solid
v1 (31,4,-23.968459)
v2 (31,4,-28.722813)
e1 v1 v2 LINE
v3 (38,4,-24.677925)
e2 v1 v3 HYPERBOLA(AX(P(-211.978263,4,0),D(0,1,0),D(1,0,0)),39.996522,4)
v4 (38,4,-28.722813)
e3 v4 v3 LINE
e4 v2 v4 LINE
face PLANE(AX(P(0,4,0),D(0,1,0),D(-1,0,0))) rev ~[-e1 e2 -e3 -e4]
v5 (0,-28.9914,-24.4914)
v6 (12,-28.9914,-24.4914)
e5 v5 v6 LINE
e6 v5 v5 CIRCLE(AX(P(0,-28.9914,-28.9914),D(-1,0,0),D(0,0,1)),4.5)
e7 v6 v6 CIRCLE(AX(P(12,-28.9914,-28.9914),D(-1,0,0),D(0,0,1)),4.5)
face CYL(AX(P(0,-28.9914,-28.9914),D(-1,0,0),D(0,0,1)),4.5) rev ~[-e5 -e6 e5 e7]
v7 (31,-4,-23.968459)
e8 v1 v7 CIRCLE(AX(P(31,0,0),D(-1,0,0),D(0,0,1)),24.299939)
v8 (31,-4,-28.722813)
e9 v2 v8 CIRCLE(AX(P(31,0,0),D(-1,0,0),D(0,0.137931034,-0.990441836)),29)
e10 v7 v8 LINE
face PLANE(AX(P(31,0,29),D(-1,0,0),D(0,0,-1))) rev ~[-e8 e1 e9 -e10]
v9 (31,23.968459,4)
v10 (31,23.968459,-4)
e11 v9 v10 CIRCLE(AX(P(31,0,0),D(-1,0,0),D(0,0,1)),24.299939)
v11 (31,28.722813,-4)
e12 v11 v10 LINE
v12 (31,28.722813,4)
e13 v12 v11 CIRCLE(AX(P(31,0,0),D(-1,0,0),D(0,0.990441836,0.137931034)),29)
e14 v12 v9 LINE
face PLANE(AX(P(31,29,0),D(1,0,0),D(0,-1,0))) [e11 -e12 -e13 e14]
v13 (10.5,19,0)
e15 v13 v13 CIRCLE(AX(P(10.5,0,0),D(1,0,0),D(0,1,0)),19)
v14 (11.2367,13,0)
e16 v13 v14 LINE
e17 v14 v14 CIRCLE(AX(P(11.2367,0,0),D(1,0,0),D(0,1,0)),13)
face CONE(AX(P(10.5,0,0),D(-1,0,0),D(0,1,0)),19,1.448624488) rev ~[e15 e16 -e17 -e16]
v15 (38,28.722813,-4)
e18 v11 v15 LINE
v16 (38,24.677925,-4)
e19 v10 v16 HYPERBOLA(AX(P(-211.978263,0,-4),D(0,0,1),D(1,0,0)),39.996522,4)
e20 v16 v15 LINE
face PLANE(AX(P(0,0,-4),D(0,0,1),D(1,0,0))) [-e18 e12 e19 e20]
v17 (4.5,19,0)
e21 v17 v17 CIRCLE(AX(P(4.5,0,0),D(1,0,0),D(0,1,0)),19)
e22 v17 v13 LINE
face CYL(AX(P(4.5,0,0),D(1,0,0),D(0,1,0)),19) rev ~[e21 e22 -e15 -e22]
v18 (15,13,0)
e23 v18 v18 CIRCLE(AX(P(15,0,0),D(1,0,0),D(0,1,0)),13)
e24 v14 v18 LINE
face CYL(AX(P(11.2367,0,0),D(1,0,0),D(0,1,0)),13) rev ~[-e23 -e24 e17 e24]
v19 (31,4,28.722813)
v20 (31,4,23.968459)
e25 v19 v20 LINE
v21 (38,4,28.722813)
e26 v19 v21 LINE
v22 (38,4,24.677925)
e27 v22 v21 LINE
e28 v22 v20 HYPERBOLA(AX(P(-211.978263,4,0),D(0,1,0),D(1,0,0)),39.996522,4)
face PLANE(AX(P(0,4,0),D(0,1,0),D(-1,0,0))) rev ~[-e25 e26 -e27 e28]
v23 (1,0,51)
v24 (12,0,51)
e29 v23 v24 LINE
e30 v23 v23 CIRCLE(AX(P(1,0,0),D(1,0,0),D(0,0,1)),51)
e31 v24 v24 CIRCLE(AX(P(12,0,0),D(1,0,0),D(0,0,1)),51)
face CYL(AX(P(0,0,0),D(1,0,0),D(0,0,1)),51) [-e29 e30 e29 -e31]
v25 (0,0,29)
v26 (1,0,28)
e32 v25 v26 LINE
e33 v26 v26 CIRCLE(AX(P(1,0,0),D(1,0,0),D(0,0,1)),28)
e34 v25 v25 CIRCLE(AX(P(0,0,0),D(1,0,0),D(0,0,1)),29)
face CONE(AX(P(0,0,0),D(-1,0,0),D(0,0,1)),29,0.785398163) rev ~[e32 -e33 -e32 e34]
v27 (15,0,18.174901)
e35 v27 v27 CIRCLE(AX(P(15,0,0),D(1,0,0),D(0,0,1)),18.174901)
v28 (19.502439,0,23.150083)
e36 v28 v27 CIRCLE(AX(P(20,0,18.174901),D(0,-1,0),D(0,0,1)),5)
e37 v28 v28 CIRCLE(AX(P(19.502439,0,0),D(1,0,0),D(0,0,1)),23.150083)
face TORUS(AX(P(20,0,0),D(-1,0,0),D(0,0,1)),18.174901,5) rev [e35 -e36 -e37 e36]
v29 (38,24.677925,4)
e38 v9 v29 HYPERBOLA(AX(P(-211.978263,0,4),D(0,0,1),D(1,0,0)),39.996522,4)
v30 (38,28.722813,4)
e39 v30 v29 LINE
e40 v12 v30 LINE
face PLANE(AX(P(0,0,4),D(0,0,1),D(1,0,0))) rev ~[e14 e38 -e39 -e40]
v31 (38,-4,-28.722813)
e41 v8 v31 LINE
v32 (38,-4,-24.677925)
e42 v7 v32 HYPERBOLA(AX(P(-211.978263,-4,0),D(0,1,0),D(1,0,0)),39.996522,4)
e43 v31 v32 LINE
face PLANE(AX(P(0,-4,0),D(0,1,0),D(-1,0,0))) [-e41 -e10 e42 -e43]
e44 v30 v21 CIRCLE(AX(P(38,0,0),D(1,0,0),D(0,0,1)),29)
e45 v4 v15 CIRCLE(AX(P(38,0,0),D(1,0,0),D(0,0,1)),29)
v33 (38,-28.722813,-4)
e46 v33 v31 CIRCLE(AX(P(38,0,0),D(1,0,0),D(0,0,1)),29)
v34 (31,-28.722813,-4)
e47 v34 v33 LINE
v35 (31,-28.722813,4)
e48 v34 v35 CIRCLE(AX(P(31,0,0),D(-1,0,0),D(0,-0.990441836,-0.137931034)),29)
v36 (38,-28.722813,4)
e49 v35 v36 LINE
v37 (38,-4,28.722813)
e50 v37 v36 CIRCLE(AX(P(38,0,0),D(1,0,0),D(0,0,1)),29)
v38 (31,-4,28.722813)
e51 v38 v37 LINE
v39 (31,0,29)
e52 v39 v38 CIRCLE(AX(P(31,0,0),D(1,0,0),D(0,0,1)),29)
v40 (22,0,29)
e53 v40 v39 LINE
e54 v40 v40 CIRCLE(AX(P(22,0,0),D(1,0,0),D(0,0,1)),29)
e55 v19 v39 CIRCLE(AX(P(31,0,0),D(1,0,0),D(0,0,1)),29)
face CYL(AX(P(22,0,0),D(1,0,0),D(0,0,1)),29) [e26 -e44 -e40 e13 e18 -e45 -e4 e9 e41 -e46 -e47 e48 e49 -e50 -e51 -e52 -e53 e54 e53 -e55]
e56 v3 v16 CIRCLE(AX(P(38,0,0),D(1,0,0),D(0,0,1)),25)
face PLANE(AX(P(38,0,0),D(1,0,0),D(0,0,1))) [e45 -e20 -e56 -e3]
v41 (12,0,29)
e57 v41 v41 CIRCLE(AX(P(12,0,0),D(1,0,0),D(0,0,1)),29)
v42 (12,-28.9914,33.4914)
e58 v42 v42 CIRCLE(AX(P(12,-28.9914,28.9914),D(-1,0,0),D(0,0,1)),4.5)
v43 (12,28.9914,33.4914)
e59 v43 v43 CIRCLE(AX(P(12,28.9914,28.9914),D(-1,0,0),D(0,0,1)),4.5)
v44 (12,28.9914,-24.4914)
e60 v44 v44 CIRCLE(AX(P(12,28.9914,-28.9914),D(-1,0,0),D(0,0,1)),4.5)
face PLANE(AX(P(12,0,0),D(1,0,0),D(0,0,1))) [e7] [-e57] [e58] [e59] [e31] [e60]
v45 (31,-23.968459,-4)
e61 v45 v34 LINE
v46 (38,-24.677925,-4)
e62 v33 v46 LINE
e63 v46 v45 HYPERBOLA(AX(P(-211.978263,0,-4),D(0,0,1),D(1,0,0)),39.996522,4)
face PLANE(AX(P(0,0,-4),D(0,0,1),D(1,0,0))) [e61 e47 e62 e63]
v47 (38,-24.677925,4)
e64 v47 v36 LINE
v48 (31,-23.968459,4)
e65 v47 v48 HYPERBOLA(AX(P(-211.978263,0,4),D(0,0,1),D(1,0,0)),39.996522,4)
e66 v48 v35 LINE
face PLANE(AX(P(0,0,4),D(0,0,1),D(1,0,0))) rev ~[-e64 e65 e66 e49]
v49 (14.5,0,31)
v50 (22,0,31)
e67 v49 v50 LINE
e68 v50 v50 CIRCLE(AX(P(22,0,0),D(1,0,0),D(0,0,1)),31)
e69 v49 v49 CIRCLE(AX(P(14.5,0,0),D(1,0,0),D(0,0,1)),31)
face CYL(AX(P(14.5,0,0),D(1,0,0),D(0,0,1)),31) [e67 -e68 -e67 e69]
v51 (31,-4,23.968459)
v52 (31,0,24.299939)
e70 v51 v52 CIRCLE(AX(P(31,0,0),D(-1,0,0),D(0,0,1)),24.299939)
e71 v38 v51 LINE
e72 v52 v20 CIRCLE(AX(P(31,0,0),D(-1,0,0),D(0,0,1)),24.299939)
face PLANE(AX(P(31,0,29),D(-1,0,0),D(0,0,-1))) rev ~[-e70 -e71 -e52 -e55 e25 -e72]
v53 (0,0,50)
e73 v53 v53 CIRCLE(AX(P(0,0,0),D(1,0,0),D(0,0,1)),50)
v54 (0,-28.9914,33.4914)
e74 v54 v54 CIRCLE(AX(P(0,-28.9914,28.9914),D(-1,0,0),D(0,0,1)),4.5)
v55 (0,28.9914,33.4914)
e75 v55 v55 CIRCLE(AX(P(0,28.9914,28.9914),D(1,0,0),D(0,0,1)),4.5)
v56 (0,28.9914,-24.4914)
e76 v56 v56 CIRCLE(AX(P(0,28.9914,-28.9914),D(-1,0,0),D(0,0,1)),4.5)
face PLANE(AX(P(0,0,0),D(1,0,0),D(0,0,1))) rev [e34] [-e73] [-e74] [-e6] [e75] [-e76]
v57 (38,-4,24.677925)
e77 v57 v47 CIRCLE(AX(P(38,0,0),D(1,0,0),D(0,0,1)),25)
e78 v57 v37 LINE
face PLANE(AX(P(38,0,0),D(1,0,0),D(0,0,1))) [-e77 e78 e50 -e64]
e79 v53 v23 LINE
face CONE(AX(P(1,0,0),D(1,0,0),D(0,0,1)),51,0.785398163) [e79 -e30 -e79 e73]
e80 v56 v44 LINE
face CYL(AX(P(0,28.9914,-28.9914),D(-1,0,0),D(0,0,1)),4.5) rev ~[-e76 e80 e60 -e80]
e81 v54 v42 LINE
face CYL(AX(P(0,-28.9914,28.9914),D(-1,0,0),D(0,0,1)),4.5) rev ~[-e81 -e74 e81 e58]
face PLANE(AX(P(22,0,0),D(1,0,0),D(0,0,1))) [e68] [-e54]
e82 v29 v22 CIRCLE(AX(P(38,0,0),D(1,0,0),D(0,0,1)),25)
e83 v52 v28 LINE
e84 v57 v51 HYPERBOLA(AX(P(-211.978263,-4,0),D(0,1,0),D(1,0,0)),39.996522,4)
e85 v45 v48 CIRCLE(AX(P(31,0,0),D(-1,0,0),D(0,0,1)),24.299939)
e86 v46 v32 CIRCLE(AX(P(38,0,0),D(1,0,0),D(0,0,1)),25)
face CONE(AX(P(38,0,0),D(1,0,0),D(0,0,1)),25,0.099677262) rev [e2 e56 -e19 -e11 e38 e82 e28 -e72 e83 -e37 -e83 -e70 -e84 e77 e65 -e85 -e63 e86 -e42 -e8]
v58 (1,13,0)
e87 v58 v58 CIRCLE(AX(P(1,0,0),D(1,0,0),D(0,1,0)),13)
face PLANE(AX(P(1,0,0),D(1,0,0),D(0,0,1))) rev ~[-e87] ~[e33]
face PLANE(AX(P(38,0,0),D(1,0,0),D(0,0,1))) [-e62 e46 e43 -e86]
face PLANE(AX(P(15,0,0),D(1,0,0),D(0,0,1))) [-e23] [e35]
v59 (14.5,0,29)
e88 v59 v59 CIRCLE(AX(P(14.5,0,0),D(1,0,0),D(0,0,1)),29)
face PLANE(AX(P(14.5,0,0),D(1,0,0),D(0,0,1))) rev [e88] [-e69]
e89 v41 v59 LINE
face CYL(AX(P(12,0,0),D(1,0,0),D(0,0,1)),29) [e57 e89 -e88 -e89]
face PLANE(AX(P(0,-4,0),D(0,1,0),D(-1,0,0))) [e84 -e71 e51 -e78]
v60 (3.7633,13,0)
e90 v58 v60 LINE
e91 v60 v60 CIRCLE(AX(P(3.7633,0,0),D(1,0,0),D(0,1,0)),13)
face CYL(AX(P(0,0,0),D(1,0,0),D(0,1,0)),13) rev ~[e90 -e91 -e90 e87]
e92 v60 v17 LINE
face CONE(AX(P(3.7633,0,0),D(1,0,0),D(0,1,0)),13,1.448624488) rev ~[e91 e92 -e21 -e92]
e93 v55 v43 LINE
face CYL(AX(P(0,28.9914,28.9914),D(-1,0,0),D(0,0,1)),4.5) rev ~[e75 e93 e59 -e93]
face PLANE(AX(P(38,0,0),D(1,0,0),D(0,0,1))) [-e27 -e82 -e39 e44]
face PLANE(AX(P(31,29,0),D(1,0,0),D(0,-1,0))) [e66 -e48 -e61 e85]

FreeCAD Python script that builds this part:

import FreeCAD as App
import Part
import Sketcher

V = App.Vector
Q = App.Units.Quantity


def edges_at(feature, points):
    """Names of the edges that pass closest to the given points."""
    edges = feature.Shape.Edges
    near = lambda p: min(range(len(edges)), key=lambda i: edges[i].distToShape(Part.Vertex(*p))[0])
    return sorted({f"Edge{near(p) + 1}" for p in points})

doc = App.newDocument("Part")
body = doc.addObject("PartDesign::Body", "Body")

sketch1 = doc.addObject("Sketcher::SketchObject", "Sketch")
body.addObject(sketch1)
sketch1.AttachmentSupport = (doc.XZ_Plane, [""])
sketch1.MapMode = "FlatFace"
sketch1.addGeometry(Part.LineSegment(V(0, 29, 0), V(0, 51, 0)), False)
sketch1.addGeometry(Part.LineSegment(V(0, 51, 0), V(12, 51, 0)), False)
sketch1.addGeometry(Part.LineSegment(V(12, 51, 0), V(12, 29, 0)), False)
sketch1.addGeometry(Part.LineSegment(V(12, 29, 0), V(14.5, 29, 0)), False)
sketch1.addGeometry(Part.LineSegment(V(14.5, 29, 0), V(14.5, 31, 0)), False)
sketch1.addGeometry(Part.LineSegment(V(14.5, 31, 0), V(22, 31, 0)), False)
sketch1.addGeometry(Part.LineSegment(V(22, 31, 0), V(22, 29, 0)), False)
sketch1.addGeometry(Part.LineSegment(V(22, 29, 0), V(38, 29, 0)), False)
sketch1.addGeometry(Part.LineSegment(V(38, 29, 0), V(38, 25, 0)), False)
sketch1.addGeometry(Part.LineSegment(V(38, 25, 0), V(15, 22.7, 0)), False)
sketch1.addGeometry(Part.LineSegment(V(15, 22.7, 0), V(15, 0, 0)), False)
sketch1.addGeometry(Part.LineSegment(V(15, 0, 0), V(1, 0, 0)), False)
sketch1.addGeometry(Part.LineSegment(V(1, 0, 0), V(1, 28, 0)), False)
sketch1.addGeometry(Part.LineSegment(V(1, 28, 0), V(0, 29, 0)), False)
sketch1.addConstraint(Sketcher.Constraint("Coincident", 0, 2, 1, 1))
sketch1.addConstraint(Sketcher.Constraint("Coincident", 1, 2, 2, 1))
sketch1.addConstraint(Sketcher.Constraint("Coincident", 2, 2, 3, 1))
sketch1.addConstraint(Sketcher.Constraint("Coincident", 3, 2, 4, 1))
sketch1.addConstraint(Sketcher.Constraint("Coincident", 4, 2, 5, 1))
sketch1.addConstraint(Sketcher.Constraint("Coincident", 5, 2, 6, 1))
sketch1.addConstraint(Sketcher.Constraint("Coincident", 6, 2, 7, 1))
sketch1.addConstraint(Sketcher.Constraint("Coincident", 7, 2, 8, 1))
sketch1.addConstraint(Sketcher.Constraint("Coincident", 8, 2, 9, 1))
sketch1.addConstraint(Sketcher.Constraint("Coincident", 9, 2, 10, 1))
sketch1.addConstraint(Sketcher.Constraint("Coincident", 10, 2, 11, 1))
sketch1.addConstraint(Sketcher.Constraint("Coincident", 11, 2, 12, 1))
sketch1.addConstraint(Sketcher.Constraint("Coincident", 12, 2, 13, 1))
sketch1.addConstraint(Sketcher.Constraint("Coincident", 13, 2, 0, 1))
sketch1.addConstraint(Sketcher.Constraint("Vertical", 0))
sketch1.addConstraint(Sketcher.Constraint("Horizontal", 1))
sketch1.addConstraint(Sketcher.Constraint("Vertical", 2))
sketch1.addConstraint(Sketcher.Constraint("Horizontal", 3))
sketch1.addConstraint(Sketcher.Constraint("Vertical", 4))
sketch1.addConstraint(Sketcher.Constraint("Horizontal", 5))
sketch1.addConstraint(Sketcher.Constraint("Vertical", 6))
sketch1.addConstraint(Sketcher.Constraint("Horizontal", 7))
sketch1.addConstraint(Sketcher.Constraint("Vertical", 8))
sketch1.addConstraint(Sketcher.Constraint("Vertical", 10))
sketch1.addConstraint(Sketcher.Constraint("Horizontal", 11))
sketch1.addConstraint(Sketcher.Constraint("Vertical", 12))
sketch1.addConstraint(Sketcher.Constraint("PointOnObject", 0, 2, -2))
sketch1.addConstraint(Sketcher.Constraint("PointOnObject", 10, 2, -1))
sketch1.addConstraint(Sketcher.Constraint("Horizontal", 3, 2, 6, 2))
sketch1.addConstraint(Sketcher.Constraint("Horizontal", 7, 2, 13, 2))
sketch1.addConstraint(Sketcher.Constraint("DistanceX", 1, 1, 1, 2, 12.0))
sketch1.addConstraint(Sketcher.Constraint("DistanceX", 3, 1, 3, 2, 2.5))
sketch1.addConstraint(Sketcher.Constraint("DistanceY", -1, 1, 0, 2, 51.0))
sketch1.addConstraint(Sketcher.Constraint("DistanceY", -1, 1, 2, 2, 29.0))
sketch1.addConstraint(Sketcher.Constraint("DistanceY", -1, 1, 4, 2, 31.0))
sketch1.addConstraint(Sketcher.Constraint("DistanceY", -1, 1, 8, 2, 25.0))
sketch1.addConstraint(Sketcher.Constraint("DistanceX", -1, 1, 9, 2, 15.0))
sketch1.addConstraint(Sketcher.Constraint("DistanceX", -1, 1, 11, 2, 1.0))
sketch1.addConstraint(Sketcher.Constraint("DistanceX", 2, 2, 5, 2, 10.0))
sketch1.addConstraint(Sketcher.Constraint("DistanceX", 2, 2, 7, 2, 26.0))
sketch1.addConstraint(Sketcher.Constraint("DistanceY", 12, 2, 2, 2, 1.0))
sketch1.addConstraint(Sketcher.Constraint("Angle", 9, Q("-174.289 deg")))
revolution = doc.addObject("PartDesign::Revolution", "Revolution")
body.addObject(revolution)
revolution.Profile = sketch1
revolution.ReferenceAxis = (sketch1, ["H_Axis"])
revolution.Angle = 360

sketch2 = doc.addObject("Sketcher::SketchObject", "Sketch001")
body.addObject(sketch2)
sketch2.AttachmentSupport = (doc.XZ_Plane, [""])
sketch2.MapMode = "FlatFace"
sketch2.addGeometry(Part.LineSegment(V(31, -29, 0), V(31, 29, 0)), False)
sketch2.addGeometry(Part.LineSegment(V(31, 29, 0), V(38, 29, 0)), False)
sketch2.addGeometry(Part.LineSegment(V(38, 29, 0), V(38, -29, 0)), False)
sketch2.addGeometry(Part.LineSegment(V(38, -29, 0), V(31, -29, 0)), False)
sketch2.addConstraint(Sketcher.Constraint("Coincident", 0, 2, 1, 1))
sketch2.addConstraint(Sketcher.Constraint("Coincident", 1, 2, 2, 1))
sketch2.addConstraint(Sketcher.Constraint("Coincident", 2, 2, 3, 1))
sketch2.addConstraint(Sketcher.Constraint("Coincident", 3, 2, 0, 1))
sketch2.addConstraint(Sketcher.Constraint("Vertical", 0))
sketch2.addConstraint(Sketcher.Constraint("Horizontal", 1))
sketch2.addConstraint(Sketcher.Constraint("Vertical", 2))
sketch2.addConstraint(Sketcher.Constraint("Horizontal", 3))
sketch2.addConstraint(Sketcher.Constraint("DistanceX", 1, 1, 1, 2, 7.0))
sketch2.addConstraint(Sketcher.Constraint("DistanceY", 0, 1, 0, 2, 58.0))
sketch2.addConstraint(Sketcher.Constraint("DistanceX", -1, 1, 0, 2, 31.0))
sketch2.addConstraint(Sketcher.Constraint("DistanceY", -1, 1, 0, 2, 29.0))
pocket1 = doc.addObject("PartDesign::Pocket", "Pocket")
body.addObject(pocket1)
pocket1.Profile = sketch2
pocket1.Length = 8
pocket1.Midplane = True

sketch3 = doc.addObject("Sketcher::SketchObject", "Sketch002")
body.addObject(sketch3)
sketch3.AttachmentSupport = (doc.XY_Plane, [""])
sketch3.MapMode = "FlatFace"
sketch3.addGeometry(Part.LineSegment(V(38, -29, 0), V(38, 29, 0)), False)
sketch3.addGeometry(Part.LineSegment(V(38, 29, 0), V(31, 29, 0)), False)
sketch3.addGeometry(Part.LineSegment(V(31, 29, 0), V(31, -29, 0)), False)
sketch3.addGeometry(Part.LineSegment(V(31, -29, 0), V(38, -29, 0)), False)
sketch3.addConstraint(Sketcher.Constraint("Coincident", 0, 2, 1, 1))
sketch3.addConstraint(Sketcher.Constraint("Coincident", 1, 2, 2, 1))
sketch3.addConstraint(Sketcher.Constraint("Coincident", 2, 2, 3, 1))
sketch3.addConstraint(Sketcher.Constraint("Coincident", 3, 2, 0, 1))
sketch3.addConstraint(Sketcher.Constraint("Vertical", 0))
sketch3.addConstraint(Sketcher.Constraint("Horizontal", 1))
sketch3.addConstraint(Sketcher.Constraint("Vertical", 2))
sketch3.addConstraint(Sketcher.Constraint("Horizontal", 3))
sketch3.addConstraint(Sketcher.Constraint("DistanceX", 1, 2, 1, 1, 7.0))
sketch3.addConstraint(Sketcher.Constraint("DistanceY", 0, 1, 0, 2, 58.0))
sketch3.addConstraint(Sketcher.Constraint("DistanceX", -1, 1, 0, 2, 38.0))
sketch3.addConstraint(Sketcher.Constraint("DistanceY", -1, 1, 0, 2, 29.0))
pocket2 = doc.addObject("PartDesign::Pocket", "Pocket001")
body.addObject(pocket2)
pocket2.Profile = sketch3
pocket2.Length = 8
pocket2.Midplane = True

sketch4 = doc.addObject("Sketcher::SketchObject", "Sketch003")
body.addObject(sketch4)
sketch4.AttachmentSupport = (doc.YZ_Plane, [""])
sketch4.MapMode = "FlatFace"
sketch4.addGeometry(Part.Circle(V(29, 29, 0), V(0, 0, 1), 4.5), False)
sketch4.addGeometry(Part.Circle(V(29, -29, 0), V(0, 0, 1), 4.5), False)
sketch4.addGeometry(Part.Circle(V(-29, -29, 0), V(0, 0, 1), 4.5), False)
sketch4.addGeometry(Part.Circle(V(-29, 29, 0), V(0, 0, 1), 4.5), False)
sketch4.addConstraint(Sketcher.Constraint("Equal", 0, 1))
sketch4.addConstraint(Sketcher.Constraint("Equal", 1, 2))
sketch4.addConstraint(Sketcher.Constraint("Equal", 2, 3))
sketch4.addConstraint(Sketcher.Constraint("Symmetric", 0, 3, 2, 3, -1, 1))
sketch4.addConstraint(Sketcher.Constraint("Symmetric", 1, 3, 3, 3, -1, 1))
sketch4.addConstraint(Sketcher.Constraint("Symmetric", 1, 3, 2, 3, -2))
sketch4.addConstraint(Sketcher.Constraint("Diameter", 0, 9.0))
sketch4.addConstraint(Sketcher.Constraint("DistanceX", -1, 1, 0, 3, 28.9914))
sketch4.addConstraint(Sketcher.Constraint("DistanceY", -1, 1, 0, 3, 28.9914))
pocket3 = doc.addObject("PartDesign::Pocket", "Pocket002")
body.addObject(pocket3)
pocket3.Profile = sketch4
pocket3.Length = 12
pocket3.Reversed = True
doc.recompute()

chamfer = doc.addObject("PartDesign::Chamfer", "Chamfer")
body.addObject(chamfer)
chamfer.Base = (pocket3, edges_at(pocket3, [(0, 0, -51)]))
chamfer.Size = 1
doc.recompute()

fillet = doc.addObject("PartDesign::Fillet", "Fillet")
body.addObject(fillet)
fillet.Base = (chamfer, edges_at(chamfer, [(15, 0, -22.7)]))
fillet.Radius = 5

sketch5 = doc.addObject("Sketcher::SketchObject", "Sketch004")
body.addObject(sketch5)
sketch5.AttachmentSupport = (doc.XY_Plane, [""])
sketch5.MapMode = "FlatFace"
sketch5.addGeometry(Part.LineSegment(V(0, 13, 0), V(0, 0, 0)), False)
sketch5.addGeometry(Part.LineSegment(V(0, 0, 0), V(15, 0, 0)), False)
sketch5.addGeometry(Part.LineSegment(V(15, 0, 0), V(15, 13, 0)), False)
sketch5.addGeometry(Part.LineSegment(V(15, 13, 0), V(11.2, 13, 0)), False)
sketch5.addGeometry(Part.LineSegment(V(11.2, 13, 0), V(10.5, 19, 0)), False)
sketch5.addGeometry(Part.LineSegment(V(10.5, 19, 0), V(4.5, 19, 0)), False)
sketch5.addGeometry(Part.LineSegment(V(4.5, 19, 0), V(3.8, 13, 0)), False)
sketch5.addGeometry(Part.LineSegment(V(3.8, 13, 0), V(0, 13, 0)), False)
sketch5.addConstraint(Sketcher.Constraint("Coincident", 0, 2, 1, 1))
sketch5.addConstraint(Sketcher.Constraint("Coincident", 1, 2, 2, 1))
sketch5.addConstraint(Sketcher.Constraint("Coincident", 2, 2, 3, 1))
sketch5.addConstraint(Sketcher.Constraint("Coincident", 3, 2, 4, 1))
sketch5.addConstraint(Sketcher.Constraint("Coincident", 4, 2, 5, 1))
sketch5.addConstraint(Sketcher.Constraint("Coincident", 5, 2, 6, 1))
sketch5.addConstraint(Sketcher.Constraint("Coincident", 6, 2, 7, 1))
sketch5.addConstraint(Sketcher.Constraint("Coincident", 7, 2, 0, 1))
sketch5.addConstraint(Sketcher.Constraint("Vertical", 0))
sketch5.addConstraint(Sketcher.Constraint("Horizontal", 1))
sketch5.addConstraint(Sketcher.Constraint("Vertical", 2))
sketch5.addConstraint(Sketcher.Constraint("Horizontal", 3))
sketch5.addConstraint(Sketcher.Constraint("Horizontal", 5))
sketch5.addConstraint(Sketcher.Constraint("Horizontal", 7))
sketch5.addConstraint(Sketcher.Constraint("Coincident", 0, 2, -1, 1))
sketch5.addConstraint(Sketcher.Constraint("Horizontal", 3, 2, 6, 2))
sketch5.addConstraint(Sketcher.Constraint("Equal", 3, 7))
sketch5.addConstraint(Sketcher.Constraint("Equal", 4, 6))
sketch5.addConstraint(Sketcher.Constraint("DistanceX", 5, 2, 5, 1, 6.0))
sketch5.addConstraint(Sketcher.Constraint("DistanceY", 0, 2, 0, 1, 13.0))
sketch5.addConstraint(Sketcher.Constraint("DistanceY", -1, 1, 4, 2, 19.0))
sketch5.addConstraint(Sketcher.Constraint("DistanceX", 1, 1, 1, 2, 15.0))
sketch5.addConstraint(Sketcher.Constraint("Angle", 4, Q("97 deg")))
groove = doc.addObject("PartDesign::Groove", "Groove")
body.addObject(groove)
groove.Profile = sketch5
groove.ReferenceAxis = (sketch5, ["H_Axis"])
groove.Angle = 360

doc.recompute()
